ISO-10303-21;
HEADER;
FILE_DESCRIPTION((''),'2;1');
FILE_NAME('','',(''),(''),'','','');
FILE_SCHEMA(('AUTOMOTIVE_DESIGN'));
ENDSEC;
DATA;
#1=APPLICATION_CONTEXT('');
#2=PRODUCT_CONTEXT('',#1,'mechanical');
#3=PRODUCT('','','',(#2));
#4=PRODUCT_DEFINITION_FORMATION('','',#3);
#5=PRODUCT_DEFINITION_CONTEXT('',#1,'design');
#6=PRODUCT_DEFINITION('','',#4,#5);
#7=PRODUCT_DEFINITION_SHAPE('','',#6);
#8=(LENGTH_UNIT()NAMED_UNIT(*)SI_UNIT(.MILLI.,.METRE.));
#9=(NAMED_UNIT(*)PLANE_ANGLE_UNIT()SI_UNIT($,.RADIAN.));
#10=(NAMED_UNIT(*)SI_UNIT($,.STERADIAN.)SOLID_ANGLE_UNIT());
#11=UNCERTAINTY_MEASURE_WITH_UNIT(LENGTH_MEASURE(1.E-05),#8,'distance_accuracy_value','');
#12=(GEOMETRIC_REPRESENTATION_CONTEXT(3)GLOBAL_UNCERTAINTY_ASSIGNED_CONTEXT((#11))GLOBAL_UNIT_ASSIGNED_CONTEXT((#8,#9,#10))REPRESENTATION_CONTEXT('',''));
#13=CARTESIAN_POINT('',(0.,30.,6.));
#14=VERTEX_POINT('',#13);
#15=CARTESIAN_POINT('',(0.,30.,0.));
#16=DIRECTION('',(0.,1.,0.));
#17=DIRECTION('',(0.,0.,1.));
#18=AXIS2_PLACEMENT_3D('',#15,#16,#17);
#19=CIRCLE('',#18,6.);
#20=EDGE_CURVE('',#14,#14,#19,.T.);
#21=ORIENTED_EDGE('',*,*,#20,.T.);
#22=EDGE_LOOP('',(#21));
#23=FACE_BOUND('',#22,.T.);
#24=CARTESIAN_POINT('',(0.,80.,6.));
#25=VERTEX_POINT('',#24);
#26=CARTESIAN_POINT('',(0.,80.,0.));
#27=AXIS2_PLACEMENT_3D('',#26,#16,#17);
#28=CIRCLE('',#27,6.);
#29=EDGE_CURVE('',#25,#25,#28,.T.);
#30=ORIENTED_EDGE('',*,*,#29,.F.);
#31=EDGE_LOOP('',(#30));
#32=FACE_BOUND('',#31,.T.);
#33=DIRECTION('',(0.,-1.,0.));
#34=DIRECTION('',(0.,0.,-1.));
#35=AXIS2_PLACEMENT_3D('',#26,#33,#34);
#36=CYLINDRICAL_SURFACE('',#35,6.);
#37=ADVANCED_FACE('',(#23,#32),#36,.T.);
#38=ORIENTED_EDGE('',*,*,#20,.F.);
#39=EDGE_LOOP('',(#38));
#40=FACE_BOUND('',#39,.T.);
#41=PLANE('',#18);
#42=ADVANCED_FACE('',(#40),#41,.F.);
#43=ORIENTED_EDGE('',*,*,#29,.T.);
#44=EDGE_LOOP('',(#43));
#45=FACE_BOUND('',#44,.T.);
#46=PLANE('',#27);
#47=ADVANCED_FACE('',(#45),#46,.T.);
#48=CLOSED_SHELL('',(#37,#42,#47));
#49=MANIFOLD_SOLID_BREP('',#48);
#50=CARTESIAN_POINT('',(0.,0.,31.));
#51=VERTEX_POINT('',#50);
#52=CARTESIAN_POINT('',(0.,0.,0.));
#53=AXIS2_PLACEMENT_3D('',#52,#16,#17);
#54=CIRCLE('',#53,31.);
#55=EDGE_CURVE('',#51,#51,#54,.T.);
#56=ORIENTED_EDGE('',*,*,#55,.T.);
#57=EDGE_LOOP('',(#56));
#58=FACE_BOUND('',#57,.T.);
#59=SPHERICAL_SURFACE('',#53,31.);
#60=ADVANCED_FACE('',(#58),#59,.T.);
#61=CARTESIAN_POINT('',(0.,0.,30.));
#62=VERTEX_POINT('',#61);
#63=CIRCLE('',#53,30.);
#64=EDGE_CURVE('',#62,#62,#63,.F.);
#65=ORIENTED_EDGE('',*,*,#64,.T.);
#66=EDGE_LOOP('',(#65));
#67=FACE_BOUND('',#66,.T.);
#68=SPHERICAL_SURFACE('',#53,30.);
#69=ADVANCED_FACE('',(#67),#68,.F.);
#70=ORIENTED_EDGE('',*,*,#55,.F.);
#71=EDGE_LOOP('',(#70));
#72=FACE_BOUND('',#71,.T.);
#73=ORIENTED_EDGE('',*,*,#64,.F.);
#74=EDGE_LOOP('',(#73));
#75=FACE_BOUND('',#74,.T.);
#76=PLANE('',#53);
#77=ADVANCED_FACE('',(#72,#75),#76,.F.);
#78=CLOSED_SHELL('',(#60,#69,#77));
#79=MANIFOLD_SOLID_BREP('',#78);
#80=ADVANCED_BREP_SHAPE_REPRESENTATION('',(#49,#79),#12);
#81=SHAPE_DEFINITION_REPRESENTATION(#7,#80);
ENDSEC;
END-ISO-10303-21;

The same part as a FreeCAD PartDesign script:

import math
import FreeCAD as App
import Part
import Sketcher
from FreeCAD import Vector
Q = App.Units.Quantity

doc = App.newDocument("Part")
params = doc.addObject("Spreadsheet::Sheet", "Params")
for row, (alias, value) in enumerate([
    ("sketch1_radius", "30 mm"),
    ("sketch1_radius2", "31 mm"),
    ("revolution_angle", "360 deg"),
    ("sketch2_diameter", "62 mm"),
    ("pocket1_length", "50 mm"),
    ("sketch3_diameter", "12 mm"),
    ("pad1_length", "50 mm"),
], start=1):
    params.set(f"A{row}", alias)
    params.set(f"B{row}", "=" + value)
    params.setAlias(f"B{row}", alias)

body = doc.addObject("PartDesign::Body", "Body")

sketch1 = body.newObject("Sketcher::SketchObject", "Sketch")
sketch1.AttachmentSupport = (doc.getObject("XZ_Plane"), [""])
sketch1.MapMode = "FlatFace"
sketch1.addGeometry([
    Part.ArcOfCircle(Part.Circle(Vector(0, 0, 0), Vector(0, 0, 1), 30), math.radians(-90), math.radians(90)),
    Part.LineSegment(Vector(0, 30, 0), Vector(0, 31, 0)),
    Part.ArcOfCircle(Part.Circle(Vector(0, 0, 0), Vector(0, 0, 1), 31), math.radians(-90), math.radians(90)),
    Part.LineSegment(Vector(0, -31, 0), Vector(0, -30, 0)),
], False)
sketch1.addConstraint([
    Sketcher.Constraint("Coincident", 0, 2, 1, 1),
    Sketcher.Constraint("Coincident", 1, 2, 2, 2),
    Sketcher.Constraint("Coincident", 2, 1, 3, 1),
    Sketcher.Constraint("Coincident", 3, 2, 0, 1),
    Sketcher.Constraint("Vertical", 1),
    Sketcher.Constraint("Vertical", 3),
    Sketcher.Constraint("Coincident", 0, 3, -1, 1),
    Sketcher.Constraint("Coincident", 2, 3, -1, 1),
    Sketcher.Constraint("PointOnObject", 0, 2, -2),
    Sketcher.Constraint("PointOnObject", 2, 1, -2),
    Sketcher.Constraint("Radius", 0, Q("30 mm")),
    Sketcher.Constraint("Radius", 2, Q("31 mm")),
])
sketch1.setExpression("Constraints[10]", "Params.sketch1_radius")
sketch1.setExpression("Constraints[11]", "Params.sketch1_radius2")
revolution = body.newObject("PartDesign::Revolution", "Revolution")
revolution.Profile = sketch1
revolution.ReferenceAxis = (sketch1, ["V_Axis"])
revolution.setExpression("Angle", "Params.revolution_angle")

sketch2 = body.newObject("Sketcher::SketchObject", "Sketch001")
sketch2.AttachmentSupport = (doc.getObject("XZ_Plane"), [""])
sketch2.MapMode = "FlatFace"
sketch2.addGeometry(Part.Circle(Vector(0, 0, 0), Vector(0, 0, 1), 31), False)
sketch2.addConstraint([
    Sketcher.Constraint("Coincident", 0, 3, -1, 1),
    Sketcher.Constraint("Diameter", 0, Q("62 mm")),
])
sketch2.setExpression("Constraints[1]", "Params.sketch2_diameter")
pocket1 = body.newObject("PartDesign::Pocket", "Pocket")
pocket1.Profile = sketch2
pocket1.setExpression("Length", "Params.pocket1_length")
pocket1.Reversed = True
body2 = doc.addObject("PartDesign::Body", "Body001")

sketch3 = body2.newObject("Sketcher::SketchObject", "Sketch002")
sketch3.AttachmentSupport = (doc.getObject("XZ_Plane001"), [""])
sketch3.MapMode = "FlatFace"
sketch3.AttachmentOffset = App.Placement(Vector(0, 0, -30), App.Rotation())
sketch3.addGeometry(Part.Circle(Vector(0, 0, 0), Vector(0, 0, 1), 6), False)
sketch3.addConstraint([
    Sketcher.Constraint("Coincident", 0, 3, -1, 1),
    Sketcher.Constraint("Diameter", 0, Q("12 mm")),
])
sketch3.setExpression("Constraints[1]", "Params.sketch3_diameter")
pad1 = body2.newObject("PartDesign::Pad", "Pad")
pad1.Profile = sketch3
pad1.setExpression("Length", "Params.pad1_length")
pad1.Reversed = True

doc.recompute()
